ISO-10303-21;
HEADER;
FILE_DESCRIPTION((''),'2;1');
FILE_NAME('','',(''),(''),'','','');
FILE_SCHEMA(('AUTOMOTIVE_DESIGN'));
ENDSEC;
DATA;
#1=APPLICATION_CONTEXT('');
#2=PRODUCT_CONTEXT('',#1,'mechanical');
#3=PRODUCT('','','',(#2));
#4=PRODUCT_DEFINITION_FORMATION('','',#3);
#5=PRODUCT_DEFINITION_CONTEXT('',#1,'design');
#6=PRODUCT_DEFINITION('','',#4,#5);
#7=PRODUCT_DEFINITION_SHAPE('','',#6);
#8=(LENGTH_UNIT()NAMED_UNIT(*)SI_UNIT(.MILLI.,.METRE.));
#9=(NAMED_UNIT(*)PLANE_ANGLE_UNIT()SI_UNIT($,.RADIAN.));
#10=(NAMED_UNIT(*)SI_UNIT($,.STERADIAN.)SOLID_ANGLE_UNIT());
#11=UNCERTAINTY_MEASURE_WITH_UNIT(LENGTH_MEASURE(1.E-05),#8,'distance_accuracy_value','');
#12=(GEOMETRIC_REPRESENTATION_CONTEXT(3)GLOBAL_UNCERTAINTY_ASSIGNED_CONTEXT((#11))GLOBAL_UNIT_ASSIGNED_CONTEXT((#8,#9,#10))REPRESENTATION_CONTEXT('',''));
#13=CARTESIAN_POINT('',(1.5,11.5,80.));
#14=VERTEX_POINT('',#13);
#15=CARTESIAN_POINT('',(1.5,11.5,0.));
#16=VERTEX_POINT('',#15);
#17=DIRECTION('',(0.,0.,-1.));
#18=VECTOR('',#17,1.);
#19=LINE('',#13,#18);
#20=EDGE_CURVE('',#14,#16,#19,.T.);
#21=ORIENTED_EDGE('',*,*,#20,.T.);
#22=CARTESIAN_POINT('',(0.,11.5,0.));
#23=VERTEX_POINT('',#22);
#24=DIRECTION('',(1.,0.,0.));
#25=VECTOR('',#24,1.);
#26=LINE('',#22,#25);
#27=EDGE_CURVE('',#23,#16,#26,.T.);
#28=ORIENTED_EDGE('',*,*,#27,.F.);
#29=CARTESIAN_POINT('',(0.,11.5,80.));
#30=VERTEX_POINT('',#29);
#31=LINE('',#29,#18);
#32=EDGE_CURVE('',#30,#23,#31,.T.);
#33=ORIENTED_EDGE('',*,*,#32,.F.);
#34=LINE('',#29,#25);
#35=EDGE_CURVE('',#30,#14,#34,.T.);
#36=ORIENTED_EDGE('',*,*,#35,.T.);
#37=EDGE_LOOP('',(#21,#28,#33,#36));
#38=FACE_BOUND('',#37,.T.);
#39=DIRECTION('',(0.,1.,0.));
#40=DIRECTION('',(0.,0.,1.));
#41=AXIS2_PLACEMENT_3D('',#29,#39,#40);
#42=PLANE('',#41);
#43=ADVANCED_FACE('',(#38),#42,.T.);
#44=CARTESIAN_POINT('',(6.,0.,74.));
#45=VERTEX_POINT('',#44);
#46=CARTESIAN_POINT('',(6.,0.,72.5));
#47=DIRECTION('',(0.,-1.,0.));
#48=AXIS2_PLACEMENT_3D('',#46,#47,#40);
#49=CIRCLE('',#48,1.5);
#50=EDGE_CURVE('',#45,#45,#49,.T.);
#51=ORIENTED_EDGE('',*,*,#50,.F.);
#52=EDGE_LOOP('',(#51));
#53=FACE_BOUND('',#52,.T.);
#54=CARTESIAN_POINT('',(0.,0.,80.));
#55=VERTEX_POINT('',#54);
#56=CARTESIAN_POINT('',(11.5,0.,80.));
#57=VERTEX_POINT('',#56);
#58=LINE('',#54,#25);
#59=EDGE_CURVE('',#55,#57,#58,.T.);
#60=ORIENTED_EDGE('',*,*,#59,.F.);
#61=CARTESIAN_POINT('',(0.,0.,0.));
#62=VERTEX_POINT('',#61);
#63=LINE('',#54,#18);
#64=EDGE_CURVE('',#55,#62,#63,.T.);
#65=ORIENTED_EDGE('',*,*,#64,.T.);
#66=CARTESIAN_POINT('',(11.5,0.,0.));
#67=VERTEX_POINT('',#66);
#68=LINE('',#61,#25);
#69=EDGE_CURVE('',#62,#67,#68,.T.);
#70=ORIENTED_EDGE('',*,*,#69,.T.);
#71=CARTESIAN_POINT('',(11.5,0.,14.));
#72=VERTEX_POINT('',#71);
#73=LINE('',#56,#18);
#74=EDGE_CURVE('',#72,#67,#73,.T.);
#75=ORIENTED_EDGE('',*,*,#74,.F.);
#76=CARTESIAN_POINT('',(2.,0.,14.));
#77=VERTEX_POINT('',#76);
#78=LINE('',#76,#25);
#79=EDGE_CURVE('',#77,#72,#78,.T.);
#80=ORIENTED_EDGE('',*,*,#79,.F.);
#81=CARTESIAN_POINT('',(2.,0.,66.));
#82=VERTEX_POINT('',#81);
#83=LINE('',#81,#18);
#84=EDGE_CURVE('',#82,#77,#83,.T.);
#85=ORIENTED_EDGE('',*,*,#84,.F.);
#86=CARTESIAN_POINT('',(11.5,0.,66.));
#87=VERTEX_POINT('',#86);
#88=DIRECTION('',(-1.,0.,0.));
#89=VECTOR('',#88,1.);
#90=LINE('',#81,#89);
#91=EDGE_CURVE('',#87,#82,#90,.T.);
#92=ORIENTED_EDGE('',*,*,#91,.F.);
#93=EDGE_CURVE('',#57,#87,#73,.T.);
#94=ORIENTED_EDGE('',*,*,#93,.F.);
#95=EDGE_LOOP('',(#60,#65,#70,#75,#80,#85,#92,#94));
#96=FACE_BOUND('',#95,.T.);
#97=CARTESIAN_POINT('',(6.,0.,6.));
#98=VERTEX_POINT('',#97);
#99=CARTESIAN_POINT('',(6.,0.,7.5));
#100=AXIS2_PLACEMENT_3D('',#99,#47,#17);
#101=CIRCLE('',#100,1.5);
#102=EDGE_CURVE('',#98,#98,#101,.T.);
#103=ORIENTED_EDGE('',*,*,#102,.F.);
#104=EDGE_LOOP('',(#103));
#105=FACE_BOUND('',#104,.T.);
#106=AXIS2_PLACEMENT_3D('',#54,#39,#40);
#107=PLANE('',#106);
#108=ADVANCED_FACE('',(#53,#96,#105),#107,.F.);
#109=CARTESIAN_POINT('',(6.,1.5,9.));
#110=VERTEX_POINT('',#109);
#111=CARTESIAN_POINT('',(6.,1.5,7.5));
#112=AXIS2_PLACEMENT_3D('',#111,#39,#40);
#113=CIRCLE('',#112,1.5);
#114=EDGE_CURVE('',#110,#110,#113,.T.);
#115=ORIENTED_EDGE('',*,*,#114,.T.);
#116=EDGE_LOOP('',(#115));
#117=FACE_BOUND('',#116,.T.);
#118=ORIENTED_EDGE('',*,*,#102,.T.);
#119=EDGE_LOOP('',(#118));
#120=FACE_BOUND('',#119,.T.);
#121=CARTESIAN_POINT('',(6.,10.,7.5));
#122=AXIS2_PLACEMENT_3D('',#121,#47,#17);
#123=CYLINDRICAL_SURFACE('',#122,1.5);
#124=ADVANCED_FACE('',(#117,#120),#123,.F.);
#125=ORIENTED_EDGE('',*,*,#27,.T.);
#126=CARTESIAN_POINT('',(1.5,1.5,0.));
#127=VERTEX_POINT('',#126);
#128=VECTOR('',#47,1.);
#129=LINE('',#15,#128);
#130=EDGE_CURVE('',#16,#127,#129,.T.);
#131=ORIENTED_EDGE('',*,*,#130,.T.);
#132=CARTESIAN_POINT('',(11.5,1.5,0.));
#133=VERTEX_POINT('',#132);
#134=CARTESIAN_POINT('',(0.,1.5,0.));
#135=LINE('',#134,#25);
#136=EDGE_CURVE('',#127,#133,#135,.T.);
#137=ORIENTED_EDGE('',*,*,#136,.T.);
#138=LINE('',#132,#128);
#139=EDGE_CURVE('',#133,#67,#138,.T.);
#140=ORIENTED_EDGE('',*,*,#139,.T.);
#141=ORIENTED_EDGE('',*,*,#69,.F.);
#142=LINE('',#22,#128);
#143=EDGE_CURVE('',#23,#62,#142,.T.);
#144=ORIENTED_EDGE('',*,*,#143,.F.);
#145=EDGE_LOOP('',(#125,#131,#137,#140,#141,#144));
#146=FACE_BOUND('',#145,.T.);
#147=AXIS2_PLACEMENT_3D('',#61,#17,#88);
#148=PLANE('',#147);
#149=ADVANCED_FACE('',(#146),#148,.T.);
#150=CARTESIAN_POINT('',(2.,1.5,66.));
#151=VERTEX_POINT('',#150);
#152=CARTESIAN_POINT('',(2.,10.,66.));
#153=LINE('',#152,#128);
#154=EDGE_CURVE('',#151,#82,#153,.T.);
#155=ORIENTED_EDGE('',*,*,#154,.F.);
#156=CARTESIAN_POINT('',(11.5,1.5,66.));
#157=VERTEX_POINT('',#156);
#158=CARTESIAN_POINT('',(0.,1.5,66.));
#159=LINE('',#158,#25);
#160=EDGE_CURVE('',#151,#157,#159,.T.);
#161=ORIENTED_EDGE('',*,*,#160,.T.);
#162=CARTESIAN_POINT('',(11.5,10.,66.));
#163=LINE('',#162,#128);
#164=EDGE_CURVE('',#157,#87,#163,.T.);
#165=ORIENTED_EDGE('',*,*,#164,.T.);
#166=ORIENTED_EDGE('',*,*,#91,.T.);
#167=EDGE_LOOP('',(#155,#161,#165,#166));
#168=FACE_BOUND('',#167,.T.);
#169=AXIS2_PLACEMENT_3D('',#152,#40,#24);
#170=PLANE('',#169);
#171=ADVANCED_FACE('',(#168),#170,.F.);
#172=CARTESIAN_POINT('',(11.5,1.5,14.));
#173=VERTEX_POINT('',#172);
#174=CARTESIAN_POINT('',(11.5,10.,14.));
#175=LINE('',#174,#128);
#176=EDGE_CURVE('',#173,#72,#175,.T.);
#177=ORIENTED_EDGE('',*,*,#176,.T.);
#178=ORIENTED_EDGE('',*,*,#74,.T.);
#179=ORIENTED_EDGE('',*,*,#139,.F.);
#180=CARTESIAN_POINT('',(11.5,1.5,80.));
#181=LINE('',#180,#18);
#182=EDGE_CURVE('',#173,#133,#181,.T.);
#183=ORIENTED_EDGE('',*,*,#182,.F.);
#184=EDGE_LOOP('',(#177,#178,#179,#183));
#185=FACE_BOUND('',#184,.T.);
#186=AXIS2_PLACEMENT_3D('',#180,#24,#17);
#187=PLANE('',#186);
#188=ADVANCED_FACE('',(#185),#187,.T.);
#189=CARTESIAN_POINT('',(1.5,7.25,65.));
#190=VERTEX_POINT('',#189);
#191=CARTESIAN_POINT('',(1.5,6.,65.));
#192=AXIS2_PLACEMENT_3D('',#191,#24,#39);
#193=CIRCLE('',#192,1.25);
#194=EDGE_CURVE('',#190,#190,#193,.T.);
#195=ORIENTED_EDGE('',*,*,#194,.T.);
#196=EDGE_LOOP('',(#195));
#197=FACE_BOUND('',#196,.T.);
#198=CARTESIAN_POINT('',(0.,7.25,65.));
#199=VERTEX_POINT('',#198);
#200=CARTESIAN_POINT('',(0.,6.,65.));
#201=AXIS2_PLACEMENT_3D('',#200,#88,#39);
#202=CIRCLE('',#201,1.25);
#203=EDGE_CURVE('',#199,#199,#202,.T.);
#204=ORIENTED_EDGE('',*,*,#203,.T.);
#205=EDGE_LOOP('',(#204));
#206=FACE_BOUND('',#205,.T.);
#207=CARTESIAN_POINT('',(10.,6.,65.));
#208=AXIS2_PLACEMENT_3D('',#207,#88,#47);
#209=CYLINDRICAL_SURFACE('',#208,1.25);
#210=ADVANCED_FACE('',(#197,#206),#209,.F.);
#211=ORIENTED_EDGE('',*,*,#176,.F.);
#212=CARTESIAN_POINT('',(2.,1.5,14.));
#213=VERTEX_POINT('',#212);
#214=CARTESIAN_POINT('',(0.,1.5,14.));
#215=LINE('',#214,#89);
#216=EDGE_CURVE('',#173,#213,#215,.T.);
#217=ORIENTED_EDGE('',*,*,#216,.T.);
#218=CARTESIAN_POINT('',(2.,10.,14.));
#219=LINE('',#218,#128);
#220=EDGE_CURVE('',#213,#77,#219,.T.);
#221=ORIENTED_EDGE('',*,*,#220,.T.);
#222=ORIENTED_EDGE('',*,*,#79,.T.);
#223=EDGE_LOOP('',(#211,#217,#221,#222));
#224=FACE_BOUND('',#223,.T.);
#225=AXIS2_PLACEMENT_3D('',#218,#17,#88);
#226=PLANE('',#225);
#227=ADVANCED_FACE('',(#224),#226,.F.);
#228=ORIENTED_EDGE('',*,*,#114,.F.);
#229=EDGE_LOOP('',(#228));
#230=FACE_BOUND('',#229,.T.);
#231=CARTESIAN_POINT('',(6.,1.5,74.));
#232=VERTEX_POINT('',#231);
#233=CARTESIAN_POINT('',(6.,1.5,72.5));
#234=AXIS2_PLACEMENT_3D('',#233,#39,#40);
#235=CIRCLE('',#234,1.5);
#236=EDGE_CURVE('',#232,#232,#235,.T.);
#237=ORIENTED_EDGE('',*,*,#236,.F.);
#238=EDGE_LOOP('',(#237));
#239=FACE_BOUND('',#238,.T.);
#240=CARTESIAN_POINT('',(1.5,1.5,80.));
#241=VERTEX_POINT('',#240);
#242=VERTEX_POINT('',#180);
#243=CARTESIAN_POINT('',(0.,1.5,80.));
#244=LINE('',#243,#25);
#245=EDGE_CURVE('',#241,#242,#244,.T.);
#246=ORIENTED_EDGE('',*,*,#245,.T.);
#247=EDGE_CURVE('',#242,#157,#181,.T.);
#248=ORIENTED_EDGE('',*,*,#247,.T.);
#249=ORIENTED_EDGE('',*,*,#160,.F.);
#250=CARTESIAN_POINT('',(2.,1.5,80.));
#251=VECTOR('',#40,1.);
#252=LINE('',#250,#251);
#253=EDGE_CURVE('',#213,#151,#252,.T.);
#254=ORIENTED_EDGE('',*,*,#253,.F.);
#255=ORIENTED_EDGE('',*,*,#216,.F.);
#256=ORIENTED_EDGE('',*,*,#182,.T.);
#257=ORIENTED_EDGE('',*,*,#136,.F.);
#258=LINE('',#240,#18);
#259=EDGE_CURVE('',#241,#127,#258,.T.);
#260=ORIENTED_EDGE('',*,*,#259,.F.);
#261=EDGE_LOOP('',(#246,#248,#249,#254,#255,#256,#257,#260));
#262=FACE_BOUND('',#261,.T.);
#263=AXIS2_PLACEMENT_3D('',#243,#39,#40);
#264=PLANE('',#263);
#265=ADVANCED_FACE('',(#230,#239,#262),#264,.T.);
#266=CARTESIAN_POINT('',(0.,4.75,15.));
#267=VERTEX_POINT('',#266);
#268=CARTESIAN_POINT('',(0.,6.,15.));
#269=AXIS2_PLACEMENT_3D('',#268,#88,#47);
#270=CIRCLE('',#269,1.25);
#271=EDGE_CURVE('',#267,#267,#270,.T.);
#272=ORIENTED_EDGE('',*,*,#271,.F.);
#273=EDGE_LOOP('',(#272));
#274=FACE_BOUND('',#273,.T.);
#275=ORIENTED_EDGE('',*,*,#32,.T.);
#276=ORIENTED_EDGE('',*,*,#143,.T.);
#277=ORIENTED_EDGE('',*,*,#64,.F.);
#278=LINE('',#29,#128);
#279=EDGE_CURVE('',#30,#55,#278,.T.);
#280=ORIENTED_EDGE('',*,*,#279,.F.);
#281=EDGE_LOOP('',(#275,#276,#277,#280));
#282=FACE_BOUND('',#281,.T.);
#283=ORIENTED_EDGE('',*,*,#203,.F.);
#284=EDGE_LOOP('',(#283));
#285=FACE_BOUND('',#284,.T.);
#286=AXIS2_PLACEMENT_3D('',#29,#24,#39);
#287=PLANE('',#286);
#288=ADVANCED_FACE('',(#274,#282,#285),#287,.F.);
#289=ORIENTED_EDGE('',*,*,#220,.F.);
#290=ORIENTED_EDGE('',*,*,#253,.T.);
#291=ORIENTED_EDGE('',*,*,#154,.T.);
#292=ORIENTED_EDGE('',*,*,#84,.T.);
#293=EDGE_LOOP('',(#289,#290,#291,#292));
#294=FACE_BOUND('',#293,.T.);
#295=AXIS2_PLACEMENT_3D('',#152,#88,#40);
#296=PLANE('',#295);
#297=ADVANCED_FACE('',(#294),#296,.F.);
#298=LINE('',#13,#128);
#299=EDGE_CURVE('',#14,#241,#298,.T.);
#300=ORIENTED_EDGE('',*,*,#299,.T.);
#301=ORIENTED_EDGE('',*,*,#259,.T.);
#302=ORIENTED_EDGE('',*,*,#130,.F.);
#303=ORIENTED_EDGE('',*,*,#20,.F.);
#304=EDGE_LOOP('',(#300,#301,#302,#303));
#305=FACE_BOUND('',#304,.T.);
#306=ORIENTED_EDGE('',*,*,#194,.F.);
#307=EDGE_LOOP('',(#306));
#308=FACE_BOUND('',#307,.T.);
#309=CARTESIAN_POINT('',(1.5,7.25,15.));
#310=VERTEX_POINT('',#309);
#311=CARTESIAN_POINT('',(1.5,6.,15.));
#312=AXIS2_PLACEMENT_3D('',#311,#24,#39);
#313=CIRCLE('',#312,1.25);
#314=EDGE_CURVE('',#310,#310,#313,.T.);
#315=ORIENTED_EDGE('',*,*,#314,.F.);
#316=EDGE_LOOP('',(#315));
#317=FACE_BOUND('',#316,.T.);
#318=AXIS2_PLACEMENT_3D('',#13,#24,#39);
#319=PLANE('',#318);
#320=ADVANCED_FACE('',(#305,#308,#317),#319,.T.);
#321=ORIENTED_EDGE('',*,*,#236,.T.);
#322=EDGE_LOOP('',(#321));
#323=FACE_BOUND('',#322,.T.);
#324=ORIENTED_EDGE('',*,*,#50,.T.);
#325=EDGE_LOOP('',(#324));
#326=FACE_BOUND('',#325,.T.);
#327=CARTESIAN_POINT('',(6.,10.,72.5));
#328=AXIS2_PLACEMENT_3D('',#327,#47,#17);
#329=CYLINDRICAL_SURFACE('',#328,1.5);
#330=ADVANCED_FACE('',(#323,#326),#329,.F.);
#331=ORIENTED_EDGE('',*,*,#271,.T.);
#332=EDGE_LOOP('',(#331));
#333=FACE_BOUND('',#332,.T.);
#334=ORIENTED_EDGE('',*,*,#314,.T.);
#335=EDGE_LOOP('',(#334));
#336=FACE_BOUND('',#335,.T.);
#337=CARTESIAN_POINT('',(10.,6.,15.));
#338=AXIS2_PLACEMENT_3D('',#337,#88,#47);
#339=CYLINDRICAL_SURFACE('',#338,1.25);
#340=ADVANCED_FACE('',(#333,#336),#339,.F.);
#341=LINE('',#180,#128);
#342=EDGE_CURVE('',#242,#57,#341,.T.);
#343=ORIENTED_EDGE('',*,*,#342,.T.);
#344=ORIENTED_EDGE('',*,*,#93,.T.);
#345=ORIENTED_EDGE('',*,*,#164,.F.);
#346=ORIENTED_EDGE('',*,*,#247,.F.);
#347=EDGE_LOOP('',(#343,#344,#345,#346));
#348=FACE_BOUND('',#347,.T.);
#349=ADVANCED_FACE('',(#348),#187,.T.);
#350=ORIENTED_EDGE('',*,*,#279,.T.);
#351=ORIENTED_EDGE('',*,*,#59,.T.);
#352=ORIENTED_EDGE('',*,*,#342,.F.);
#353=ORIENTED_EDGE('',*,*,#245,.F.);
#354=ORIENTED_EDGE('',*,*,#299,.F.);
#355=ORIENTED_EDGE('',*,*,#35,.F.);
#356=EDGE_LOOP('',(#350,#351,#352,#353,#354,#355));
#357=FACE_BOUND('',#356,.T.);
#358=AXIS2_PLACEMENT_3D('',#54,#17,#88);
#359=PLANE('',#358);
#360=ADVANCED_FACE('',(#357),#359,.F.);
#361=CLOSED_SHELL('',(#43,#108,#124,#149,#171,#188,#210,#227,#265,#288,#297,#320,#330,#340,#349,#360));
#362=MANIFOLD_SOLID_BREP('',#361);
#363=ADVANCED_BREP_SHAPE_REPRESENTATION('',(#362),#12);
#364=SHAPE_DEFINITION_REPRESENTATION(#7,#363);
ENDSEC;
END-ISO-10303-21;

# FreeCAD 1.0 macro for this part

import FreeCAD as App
import Part
import Sketcher
from FreeCAD import Vector
Q = App.Units.Quantity


def add_polygon(sketch, points):
    """Adds a closed chain of lines whose ends are joined by coincident constraints."""
    first, n = sketch.GeometryCount, len(points)
    for a, b in zip(points, points[1:] + points[:1]):
        sketch.addGeometry(Part.LineSegment(App.Vector(*a, 0), App.Vector(*b, 0)), False)
    for i in range(n):
        sketch.addConstraint(Sketcher.Constraint("Coincident", first + i, 2, first + (i + 1) % n, 1))

doc = App.newDocument("Part")
body = doc.addObject("PartDesign::Body", "Body")

sketch1 = body.newObject("Sketcher::SketchObject", "Sketch")
sketch1.AttachmentSupport = (doc.getObject("XY_Plane"), [""])
sketch1.MapMode = "FlatFace"
add_polygon(sketch1, [(0, 11.5), (0, 0), (11.5, 0), (11.5, 1.5), (1.5, 1.5), (1.5, 11.5)])
sketch1.addConstraint([
    Sketcher.Constraint("Vertical", 0),
    Sketcher.Constraint("Horizontal", 1),
    Sketcher.Constraint("Vertical", 2),
    Sketcher.Constraint("Horizontal", 3),
    Sketcher.Constraint("Vertical", 4),
    Sketcher.Constraint("Horizontal", 5),
    Sketcher.Constraint("Coincident", 0, 2, -1, 1),
    Sketcher.Constraint("Equal", 1, 0),
    Sketcher.Constraint("Equal", 5, 2),
    Sketcher.Constraint("DistanceX", 3, 2, 3, 1, Q("10 mm")),
    Sketcher.Constraint("DistanceX", 1, 1, 1, 2, Q("11.5 mm")),
])
pad1 = body.newObject("PartDesign::Pad", "Pad")
pad1.Profile = sketch1
pad1.Length = 80

sketch2 = body.newObject("Sketcher::SketchObject", "Sketch001")
sketch2.AttachmentSupport = (doc.getObject("YZ_Plane"), [""])
sketch2.MapMode = "FlatFace"
sketch2.addGeometry([
    Part.Circle(Vector(6, 15, 0), Vector(0, 0, 1), 1.25),
    Part.Circle(Vector(6, 65, 0), Vector(0, 0, 1), 1.25),
], False)
sketch2.addConstraint([
    Sketcher.Constraint("Equal", 0, 1),
    Sketcher.Constraint("Vertical", 0, 3, 1, 3),
    Sketcher.Constraint("Diameter", 0, Q("2.5 mm")),
    Sketcher.Constraint("DistanceX", -1, 1, 0, 3, Q("6 mm")),
    Sketcher.Constraint("DistanceY", -1, 1, 0, 3, Q("15 mm")),
    Sketcher.Constraint("DistanceY", -1, 1, 1, 3, Q("65 mm")),
])
pocket1 = body.newObject("PartDesign::Pocket", "Pocket")
pocket1.Profile = sketch2
pocket1.Length = 10
pocket1.Reversed = True

sketch3 = body.newObject("Sketcher::SketchObject", "Sketch002")
sketch3.AttachmentSupport = (doc.getObject("XZ_Plane"), [""])
sketch3.MapMode = "FlatFace"
sketch3.addGeometry(Part.Circle(Vector(6, 7.5, 0), Vector(0, 0, 1), 1.5), False)
sketch3.addGeometry(Part.Circle(Vector(6, 72.5, 0), Vector(0, 0, 1), 1.5), False)
add_polygon(sketch3, [(2, 66), (2, 14), (11.5, 14), (11.5, 66)])
sketch3.addConstraint([
    Sketcher.Constraint("Vertical", 2),
    Sketcher.Constraint("Horizontal", 3),
    Sketcher.Constraint("Vertical", 4),
    Sketcher.Constraint("Horizontal", 5),
    Sketcher.Constraint("Equal", 0, 1),
    Sketcher.Constraint("Vertical", 0, 3, 1, 3),
    Sketcher.Constraint("Diameter", 0, Q("3 mm")),
    Sketcher.Constraint("DistanceY", 2, 2, 2, 1, Q("52 mm")),
    Sketcher.Constraint("DistanceX", 3, 1, 3, 2, Q("9.5 mm")),
    Sketcher.Constraint("DistanceX", -1, 1, 0, 3, Q("6 mm")),
    Sketcher.Constraint("DistanceX", -1, 1, 2, 2, Q("2 mm")),
    Sketcher.Constraint("DistanceY", -1, 1, 2, 2, Q("14 mm")),
    Sketcher.Constraint("DistanceY", 0, 3, 1, 3, Q("65 mm")),
    Sketcher.Constraint("DistanceY", -1, 1, 0, 3, Q("7.5 mm")),
])
pocket2 = body.newObject("PartDesign::Pocket", "Pocket001")
pocket2.Profile = sketch3
pocket2.Length = 10

doc.recompute()
